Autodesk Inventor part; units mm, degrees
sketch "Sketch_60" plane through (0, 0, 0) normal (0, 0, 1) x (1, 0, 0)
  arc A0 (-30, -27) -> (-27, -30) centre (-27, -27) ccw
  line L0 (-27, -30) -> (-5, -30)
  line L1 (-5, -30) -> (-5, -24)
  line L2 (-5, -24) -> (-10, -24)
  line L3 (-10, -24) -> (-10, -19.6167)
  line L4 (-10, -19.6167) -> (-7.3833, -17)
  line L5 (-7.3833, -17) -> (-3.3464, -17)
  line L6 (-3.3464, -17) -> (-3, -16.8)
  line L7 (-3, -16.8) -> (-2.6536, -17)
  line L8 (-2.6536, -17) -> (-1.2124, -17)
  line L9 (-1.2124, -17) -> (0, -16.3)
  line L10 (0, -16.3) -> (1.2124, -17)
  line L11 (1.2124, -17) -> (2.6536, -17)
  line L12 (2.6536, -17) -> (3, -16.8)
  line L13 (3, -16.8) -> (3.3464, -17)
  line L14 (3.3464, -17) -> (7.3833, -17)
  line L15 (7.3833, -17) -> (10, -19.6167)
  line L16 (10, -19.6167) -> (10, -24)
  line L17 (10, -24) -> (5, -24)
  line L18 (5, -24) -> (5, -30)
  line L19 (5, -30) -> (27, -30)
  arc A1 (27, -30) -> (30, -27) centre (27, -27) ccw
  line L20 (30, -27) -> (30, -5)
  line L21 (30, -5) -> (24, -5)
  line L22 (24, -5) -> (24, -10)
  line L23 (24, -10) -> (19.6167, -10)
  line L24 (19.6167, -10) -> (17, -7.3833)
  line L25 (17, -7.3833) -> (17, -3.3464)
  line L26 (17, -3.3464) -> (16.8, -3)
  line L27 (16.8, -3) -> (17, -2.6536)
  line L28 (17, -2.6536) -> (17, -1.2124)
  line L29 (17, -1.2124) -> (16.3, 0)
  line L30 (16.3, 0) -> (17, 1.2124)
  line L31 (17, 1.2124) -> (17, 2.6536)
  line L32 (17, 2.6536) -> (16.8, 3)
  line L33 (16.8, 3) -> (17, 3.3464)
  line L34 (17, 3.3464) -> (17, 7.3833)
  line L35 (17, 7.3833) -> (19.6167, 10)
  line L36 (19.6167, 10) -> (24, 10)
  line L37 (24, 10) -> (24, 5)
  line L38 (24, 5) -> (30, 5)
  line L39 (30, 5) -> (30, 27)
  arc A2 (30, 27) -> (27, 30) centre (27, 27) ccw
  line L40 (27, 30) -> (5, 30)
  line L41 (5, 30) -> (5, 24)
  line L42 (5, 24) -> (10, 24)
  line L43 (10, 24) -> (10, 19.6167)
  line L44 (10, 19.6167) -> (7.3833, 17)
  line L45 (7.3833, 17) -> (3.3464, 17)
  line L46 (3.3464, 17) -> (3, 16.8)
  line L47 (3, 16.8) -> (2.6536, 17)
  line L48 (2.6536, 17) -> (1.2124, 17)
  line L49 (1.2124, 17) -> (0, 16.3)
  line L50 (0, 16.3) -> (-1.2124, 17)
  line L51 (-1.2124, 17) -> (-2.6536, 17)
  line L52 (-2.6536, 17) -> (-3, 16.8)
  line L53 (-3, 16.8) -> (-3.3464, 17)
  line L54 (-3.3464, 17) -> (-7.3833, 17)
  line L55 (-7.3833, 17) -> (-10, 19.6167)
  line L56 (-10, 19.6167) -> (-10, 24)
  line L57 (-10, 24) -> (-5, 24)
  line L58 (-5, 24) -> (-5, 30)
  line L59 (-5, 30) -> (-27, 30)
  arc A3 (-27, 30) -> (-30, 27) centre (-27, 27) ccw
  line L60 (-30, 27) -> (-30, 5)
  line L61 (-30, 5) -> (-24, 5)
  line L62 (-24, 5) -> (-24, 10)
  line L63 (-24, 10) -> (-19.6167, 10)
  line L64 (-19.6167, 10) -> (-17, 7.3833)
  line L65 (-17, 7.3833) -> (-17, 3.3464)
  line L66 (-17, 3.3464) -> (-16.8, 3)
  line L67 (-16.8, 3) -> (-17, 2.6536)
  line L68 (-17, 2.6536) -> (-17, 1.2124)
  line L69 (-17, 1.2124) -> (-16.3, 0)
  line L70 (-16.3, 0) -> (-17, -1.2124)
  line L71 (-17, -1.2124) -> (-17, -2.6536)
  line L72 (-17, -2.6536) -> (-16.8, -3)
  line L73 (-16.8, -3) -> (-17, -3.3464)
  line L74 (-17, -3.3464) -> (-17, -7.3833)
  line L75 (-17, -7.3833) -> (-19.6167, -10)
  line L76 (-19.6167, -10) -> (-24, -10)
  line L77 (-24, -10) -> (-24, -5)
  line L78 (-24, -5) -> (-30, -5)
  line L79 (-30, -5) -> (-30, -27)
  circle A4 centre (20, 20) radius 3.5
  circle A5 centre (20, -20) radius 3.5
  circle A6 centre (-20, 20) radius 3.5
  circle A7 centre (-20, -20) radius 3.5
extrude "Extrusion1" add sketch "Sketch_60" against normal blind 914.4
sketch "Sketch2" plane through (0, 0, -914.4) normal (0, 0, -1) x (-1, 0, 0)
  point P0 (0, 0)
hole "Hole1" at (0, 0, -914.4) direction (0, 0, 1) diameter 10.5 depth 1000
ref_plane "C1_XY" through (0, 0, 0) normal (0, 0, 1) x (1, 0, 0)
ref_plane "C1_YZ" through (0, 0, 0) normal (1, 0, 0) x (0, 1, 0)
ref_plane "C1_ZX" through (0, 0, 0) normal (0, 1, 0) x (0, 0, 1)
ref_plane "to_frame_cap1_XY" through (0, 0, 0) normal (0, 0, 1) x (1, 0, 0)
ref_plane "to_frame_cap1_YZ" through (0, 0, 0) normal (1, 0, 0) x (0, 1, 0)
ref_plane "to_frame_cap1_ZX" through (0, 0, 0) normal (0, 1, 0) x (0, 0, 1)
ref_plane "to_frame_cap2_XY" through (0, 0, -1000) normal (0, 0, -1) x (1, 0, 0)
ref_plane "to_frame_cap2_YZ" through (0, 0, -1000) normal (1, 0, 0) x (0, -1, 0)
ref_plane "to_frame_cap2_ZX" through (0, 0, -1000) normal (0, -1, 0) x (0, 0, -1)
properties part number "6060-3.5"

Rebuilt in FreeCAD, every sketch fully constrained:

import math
import FreeCAD as App
import Part
import Sketcher
Q = App.Units.Quantity

doc = App.newDocument("Part")
body = doc.addObject("PartDesign::Body", "Body")

# Sketch on XY plane
sketch1 = body.newObject("Sketcher::SketchObject", "Sketch")
sketch1.AttachmentSupport = (doc.getObject("XY_Plane"), [""])
sketch1.MapMode = "FlatFace"
sketch1.addGeometry(Part.LineSegment(App.Vector(-30, -5, 0), App.Vector(-30, -27, 0)), False)
sketch1.addGeometry(Part.ArcOfCircle(Part.Circle(App.Vector(-27, -27, 0), App.Vector(0, 0, 1), 3), math.radians(180), math.radians(270)), False)
sketch1.addGeometry(Part.LineSegment(App.Vector(-27, -30, 0), App.Vector(-5, -30, 0)), False)
sketch1.addGeometry(Part.LineSegment(App.Vector(-5, -30, 0), App.Vector(-5, -24, 0)), False)
sketch1.addGeometry(Part.LineSegment(App.Vector(-5, -24, 0), App.Vector(-10, -24, 0)), False)
sketch1.addGeometry(Part.LineSegment(App.Vector(-10, -24, 0), App.Vector(-10, -19.62, 0)), False)
sketch1.addGeometry(Part.LineSegment(App.Vector(-10, -19.62, 0), App.Vector(-7.38, -17, 0)), False)
sketch1.addGeometry(Part.LineSegment(App.Vector(-7.38, -17, 0), App.Vector(-3.35, -17, 0)), False)
sketch1.addGeometry(Part.LineSegment(App.Vector(-3.35, -17, 0), App.Vector(-3, -16.8, 0)), False)
sketch1.addGeometry(Part.LineSegment(App.Vector(-3, -16.8, 0), App.Vector(-2.65, -17, 0)), False)
sketch1.addGeometry(Part.LineSegment(App.Vector(-2.65, -17, 0), App.Vector(-1.21, -17, 0)), False)
sketch1.addGeometry(Part.LineSegment(App.Vector(-1.21, -17, 0), App.Vector(0, -16.3, 0)), False)
sketch1.addGeometry(Part.LineSegment(App.Vector(0, -16.3, 0), App.Vector(1.21, -17, 0)), False)
sketch1.addGeometry(Part.LineSegment(App.Vector(1.21, -17, 0), App.Vector(2.65, -17, 0)), False)
sketch1.addGeometry(Part.LineSegment(App.Vector(2.65, -17, 0), App.Vector(3, -16.8, 0)), False)
sketch1.addGeometry(Part.LineSegment(App.Vector(3, -16.8, 0), App.Vector(3.35, -17, 0)), False)
sketch1.addGeometry(Part.LineSegment(App.Vector(3.35, -17, 0), App.Vector(7.38, -17, 0)), False)
sketch1.addGeometry(Part.LineSegment(App.Vector(7.38, -17, 0), App.Vector(10, -19.62, 0)), False)
sketch1.addGeometry(Part.LineSegment(App.Vector(10, -19.62, 0), App.Vector(10, -24, 0)), False)
sketch1.addGeometry(Part.LineSegment(App.Vector(10, -24, 0), App.Vector(5, -24, 0)), False)
sketch1.addGeometry(Part.LineSegment(App.Vector(5, -24, 0), App.Vector(5, -30, 0)), False)
sketch1.addGeometry(Part.LineSegment(App.Vector(5, -30, 0), App.Vector(27, -30, 0)), False)
sketch1.addGeometry(Part.ArcOfCircle(Part.Circle(App.Vector(27, -27, 0), App.Vector(0, 0, 1), 3), math.radians(-90), math.radians(0)), False)
sketch1.addGeometry(Part.LineSegment(App.Vector(30, -27, 0), App.Vector(30, -5, 0)), False)
sketch1.addGeometry(Part.LineSegment(App.Vector(30, -5, 0), App.Vector(24, -5, 0)), False)
sketch1.addGeometry(Part.LineSegment(App.Vector(24, -5, 0), App.Vector(24, -10, 0)), False)
sketch1.addGeometry(Part.LineSegment(App.Vector(24, -10, 0), App.Vector(19.62, -10, 0)), False)
sketch1.addGeometry(Part.LineSegment(App.Vector(19.62, -10, 0), App.Vector(17, -7.38, 0)), False)
sketch1.addGeometry(Part.LineSegment(App.Vector(17, -7.38, 0), App.Vector(17, -3.35, 0)), False)
sketch1.addGeometry(Part.LineSegment(App.Vector(17, -3.35, 0), App.Vector(16.8, -3, 0)), False)
sketch1.addGeometry(Part.LineSegment(App.Vector(16.8, -3, 0), App.Vector(17, -2.65, 0)), False)
sketch1.addGeometry(Part.LineSegment(App.Vector(17, -2.65, 0), App.Vector(17, -1.21, 0)), False)
sketch1.addGeometry(Part.LineSegment(App.Vector(17, -1.21, 0), App.Vector(16.3, 0, 0)), False)
sketch1.addGeometry(Part.LineSegment(App.Vector(16.3, 0, 0), App.Vector(17, 1.21, 0)), False)
sketch1.addGeometry(Part.LineSegment(App.Vector(17, 1.21, 0), App.Vector(17, 2.65, 0)), False)
sketch1.addGeometry(Part.LineSegment(App.Vector(17, 2.65, 0), App.Vector(16.8, 3, 0)), False)
sketch1.addGeometry(Part.LineSegment(App.Vector(16.8, 3, 0), App.Vector(17, 3.35, 0)), False)
sketch1.addGeometry(Part.LineSegment(App.Vector(17, 3.35, 0), App.Vector(17, 7.38, 0)), False)
sketch1.addGeometry(Part.LineSegment(App.Vector(17, 7.38, 0), App.Vector(19.62, 10, 0)), False)
sketch1.addGeometry(Part.LineSegment(App.Vector(19.62, 10, 0), App.Vector(24, 10, 0)), False)
sketch1.addGeometry(Part.LineSegment(App.Vector(24, 10, 0), App.Vector(24, 5, 0)), False)
sketch1.addGeometry(Part.LineSegment(App.Vector(24, 5, 0), App.Vector(30, 5, 0)), False)
sketch1.addGeometry(Part.LineSegment(App.Vector(30, 5, 0), App.Vector(30, 27, 0)), False)
sketch1.addGeometry(Part.ArcOfCircle(Part.Circle(App.Vector(27, 27, 0), App.Vector(0, 0, 1), 3), math.radians(0), math.radians(90)), False)
sketch1.addGeometry(Part.LineSegment(App.Vector(27, 30, 0), App.Vector(5, 30, 0)), False)
sketch1.addGeometry(Part.LineSegment(App.Vector(5, 30, 0), App.Vector(5, 24, 0)), False)
sketch1.addGeometry(Part.LineSegment(App.Vector(5, 24, 0), App.Vector(10, 24, 0)), False)
sketch1.addGeometry(Part.LineSegment(App.Vector(10, 24, 0), App.Vector(10, 19.62, 0)), False)
sketch1.addGeometry(Part.LineSegment(App.Vector(10, 19.62, 0), App.Vector(7.38, 17, 0)), False)
sketch1.addGeometry(Part.LineSegment(App.Vector(7.38, 17, 0), App.Vector(3.35, 17, 0)), False)
sketch1.addGeometry(Part.LineSegment(App.Vector(3.35, 17, 0), App.Vector(3, 16.8, 0)), False)
sketch1.addGeometry(Part.LineSegment(App.Vector(3, 16.8, 0), App.Vector(2.65, 17, 0)), False)
sketch1.addGeometry(Part.LineSegment(App.Vector(2.65, 17, 0), App.Vector(1.21, 17, 0)), False)
sketch1.addGeometry(Part.LineSegment(App.Vector(1.21, 17, 0), App.Vector(0, 16.3, 0)), False)
sketch1.addGeometry(Part.LineSegment(App.Vector(0, 16.3, 0), App.Vector(-1.21, 17, 0)), False)
sketch1.addGeometry(Part.LineSegment(App.Vector(-1.21, 17, 0), App.Vector(-2.65, 17, 0)), False)
sketch1.addGeometry(Part.LineSegment(App.Vector(-2.65, 17, 0), App.Vector(-3, 16.8, 0)), False)
sketch1.addGeometry(Part.LineSegment(App.Vector(-3, 16.8, 0), App.Vector(-3.35, 17, 0)), False)
sketch1.addGeometry(Part.LineSegment(App.Vector(-3.35, 17, 0), App.Vector(-7.38, 17, 0)), False)
sketch1.addGeometry(Part.LineSegment(App.Vector(-7.38, 17, 0), App.Vector(-10, 19.62, 0)), False)
sketch1.addGeometry(Part.LineSegment(App.Vector(-10, 19.62, 0), App.Vector(-10, 24, 0)), False)
sketch1.addGeometry(Part.LineSegment(App.Vector(-10, 24, 0), App.Vector(-5, 24, 0)), False)
sketch1.addGeometry(Part.LineSegment(App.Vector(-5, 24, 0), App.Vector(-5, 30, 0)), False)
sketch1.addGeometry(Part.LineSegment(App.Vector(-5, 30, 0), App.Vector(-27, 30, 0)), False)
sketch1.addGeometry(Part.ArcOfCircle(Part.Circle(App.Vector(-27, 27, 0), App.Vector(0, 0, 1), 3), math.radians(90), math.radians(180)), False)
sketch1.addGeometry(Part.LineSegment(App.Vector(-30, 27, 0), App.Vector(-30, 5, 0)), False)
sketch1.addGeometry(Part.LineSegment(App.Vector(-30, 5, 0), App.Vector(-24, 5, 0)), False)
sketch1.addGeometry(Part.LineSegment(App.Vector(-24, 5, 0), App.Vector(-24, 10, 0)), False)
sketch1.addGeometry(Part.LineSegment(App.Vector(-24, 10, 0), App.Vector(-19.62, 10, 0)), False)
sketch1.addGeometry(Part.LineSegment(App.Vector(-19.62, 10, 0), App.Vector(-17, 7.38, 0)), False)
sketch1.addGeometry(Part.LineSegment(App.Vector(-17, 7.38, 0), App.Vector(-17, 3.35, 0)), False)
sketch1.addGeometry(Part.LineSegment(App.Vector(-17, 3.35, 0), App.Vector(-16.8, 3, 0)), False)
sketch1.addGeometry(Part.LineSegment(App.Vector(-16.8, 3, 0), App.Vector(-17, 2.65, 0)), False)
sketch1.addGeometry(Part.LineSegment(App.Vector(-17, 2.65, 0), App.Vector(-17, 1.21, 0)), False)
sketch1.addGeometry(Part.LineSegment(App.Vector(-17, 1.21, 0), App.Vector(-16.3, 0, 0)), False)
sketch1.addGeometry(Part.LineSegment(App.Vector(-16.3, 0, 0), App.Vector(-17, -1.21, 0)), False)
sketch1.addGeometry(Part.LineSegment(App.Vector(-17, -1.21, 0), App.Vector(-17, -2.65, 0)), False)
sketch1.addGeometry(Part.LineSegment(App.Vector(-17, -2.65, 0), App.Vector(-16.8, -3, 0)), False)
sketch1.addGeometry(Part.LineSegment(App.Vector(-16.8, -3, 0), App.Vector(-17, -3.35, 0)), False)
sketch1.addGeometry(Part.LineSegment(App.Vector(-17, -3.35, 0), App.Vector(-17, -7.38, 0)), False)
sketch1.addGeometry(Part.LineSegment(App.Vector(-17, -7.38, 0), App.Vector(-19.62, -10, 0)), False)
sketch1.addGeometry(Part.LineSegment(App.Vector(-19.62, -10, 0), App.Vector(-24, -10, 0)), False)
sketch1.addGeometry(Part.LineSegment(App.Vector(-24, -10, 0), App.Vector(-24, -5, 0)), False)
sketch1.addGeometry(Part.LineSegment(App.Vector(-24, -5, 0), App.Vector(-30, -5, 0)), False)
sketch1.addGeometry(Part.Circle(App.Vector(-20, -20, 0), App.Vector(0, 0, 1), 3.5), False)
sketch1.addGeometry(Part.Circle(App.Vector(20, -20, 0), App.Vector(0, 0, 1), 3.5), False)
sketch1.addGeometry(Part.Circle(App.Vector(-20, 20, 0), App.Vector(0, 0, 1), 3.5), False)
sketch1.addGeometry(Part.Circle(App.Vector(20, 20, 0), App.Vector(0, 0, 1), 3.5), False)
sketch1.addConstraint(Sketcher.Constraint("Tangent", 0, 2, 1, 1))
sketch1.addConstraint(Sketcher.Constraint("Tangent", 1, 2, 2, 1))
sketch1.addConstraint(Sketcher.Constraint("Coincident", 2, 2, 3, 1))
sketch1.addConstraint(Sketcher.Constraint("Coincident", 3, 2, 4, 1))
sketch1.addConstraint(Sketcher.Constraint("Coincident", 4, 2, 5, 1))
sketch1.addConstraint(Sketcher.Constraint("Coincident", 5, 2, 6, 1))
sketch1.addConstraint(Sketcher.Constraint("Coincident", 6, 2, 7, 1))
sketch1.addConstraint(Sketcher.Constraint("Coincident", 7, 2, 8, 1))
sketch1.addConstraint(Sketcher.Constraint("Coincident", 8, 2, 9, 1))
sketch1.addConstraint(Sketcher.Constraint("Coincident", 9, 2, 10, 1))
sketch1.addConstraint(Sketcher.Constraint("Coincident", 10, 2, 11, 1))
sketch1.addConstraint(Sketcher.Constraint("Coincident", 11, 2, 12, 1))
sketch1.addConstraint(Sketcher.Constraint("Coincident", 12, 2, 13, 1))
sketch1.addConstraint(Sketcher.Constraint("Coincident", 13, 2, 14, 1))
sketch1.addConstraint(Sketcher.Constraint("Coincident", 14, 2, 15, 1))
sketch1.addConstraint(Sketcher.Constraint("Coincident", 15, 2, 16, 1))
sketch1.addConstraint(Sketcher.Constraint("Coincident", 16, 2, 17, 1))
sketch1.addConstraint(Sketcher.Constraint("Coincident", 17, 2, 18, 1))
sketch1.addConstraint(Sketcher.Constraint("Coincident", 18, 2, 19, 1))
sketch1.addConstraint(Sketcher.Constraint("Coincident", 19, 2, 20, 1))
sketch1.addConstraint(Sketcher.Constraint("Coincident", 20, 2, 21, 1))
sketch1.addConstraint(Sketcher.Constraint("Tangent", 21, 2, 22, 1))
sketch1.addConstraint(Sketcher.Constraint("Tangent", 22, 2, 23, 1))
sketch1.addConstraint(Sketcher.Constraint("Coincident", 23, 2, 24, 1))
sketch1.addConstraint(Sketcher.Constraint("Coincident", 24, 2, 25, 1))
sketch1.addConstraint(Sketcher.Constraint("Coincident", 25, 2, 26, 1))
sketch1.addConstraint(Sketcher.Constraint("Coincident", 26, 2, 27, 1))
sketch1.addConstraint(Sketcher.Constraint("Coincident", 27, 2, 28, 1))
sketch1.addConstraint(Sketcher.Constraint("Coincident", 28, 2, 29, 1))
sketch1.addConstraint(Sketcher.Constraint("Coincident", 29, 2, 30, 1))
sketch1.addConstraint(Sketcher.Constraint("Coincident", 30, 2, 31, 1))
sketch1.addConstraint(Sketcher.Constraint("Coincident", 31, 2, 32, 1))
sketch1.addConstraint(Sketcher.Constraint("Coincident", 32, 2, 33, 1))
sketch1.addConstraint(Sketcher.Constraint("Coincident", 33, 2, 34, 1))
sketch1.addConstraint(Sketcher.Constraint("Coincident", 34, 2, 35, 1))
sketch1.addConstraint(Sketcher.Constraint("Coincident", 35, 2, 36, 1))
sketch1.addConstraint(Sketcher.Constraint("Coincident", 36, 2, 37, 1))
sketch1.addConstraint(Sketcher.Constraint("Coincident", 37, 2, 38, 1))
sketch1.addConstraint(Sketcher.Constraint("Coincident", 38, 2, 39, 1))
sketch1.addConstraint(Sketcher.Constraint("Coincident", 39, 2, 40, 1))
sketch1.addConstraint(Sketcher.Constraint("Coincident", 40, 2, 41, 1))
sketch1.addConstraint(Sketcher.Constraint("Coincident", 41, 2, 42, 1))
sketch1.addConstraint(Sketcher.Constraint("Tangent", 42, 2, 43, 1))
sketch1.addConstraint(Sketcher.Constraint("Tangent", 43, 2, 44, 1))
sketch1.addConstraint(Sketcher.Constraint("Coincident", 44, 2, 45, 1))
sketch1.addConstraint(Sketcher.Constraint("Coincident", 45, 2, 46, 1))
sketch1.addConstraint(Sketcher.Constraint("Coincident", 46, 2, 47, 1))
sketch1.addConstraint(Sketcher.Constraint("Coincident", 47, 2, 48, 1))
sketch1.addConstraint(Sketcher.Constraint("Coincident", 48, 2, 49, 1))
sketch1.addConstraint(Sketcher.Constraint("Coincident", 49, 2, 50, 1))
sketch1.addConstraint(Sketcher.Constraint("Coincident", 50, 2, 51, 1))
sketch1.addConstraint(Sketcher.Constraint("Coincident", 51, 2, 52, 1))
sketch1.addConstraint(Sketcher.Constraint("Coincident", 52, 2, 53, 1))
sketch1.addConstraint(Sketcher.Constraint("Coincident", 53, 2, 54, 1))
sketch1.addConstraint(Sketcher.Constraint("Coincident", 54, 2, 55, 1))
sketch1.addConstraint(Sketcher.Constraint("Coincident", 55, 2, 56, 1))
sketch1.addConstraint(Sketcher.Constraint("Coincident", 56, 2, 57, 1))
sketch1.addConstraint(Sketcher.Constraint("Coincident", 57, 2, 58, 1))
sketch1.addConstraint(Sketcher.Constraint("Coincident", 58, 2, 59, 1))
sketch1.addConstraint(Sketcher.Constraint("Coincident", 59, 2, 60, 1))
sketch1.addConstraint(Sketcher.Constraint("Coincident", 60, 2, 61, 1))
sketch1.addConstraint(Sketcher.Constraint("Coincident", 61, 2, 62, 1))
sketch1.addConstraint(Sketcher.Constraint("Coincident", 62, 2, 63, 1))
sketch1.addConstraint(Sketcher.Constraint("Tangent", 63, 2, 64, 1))
sketch1.addConstraint(Sketcher.Constraint("Tangent", 64, 2, 65, 1))
sketch1.addConstraint(Sketcher.Constraint("Coincident", 65, 2, 66, 1))
sketch1.addConstraint(Sketcher.Constraint("Coincident", 66, 2, 67, 1))
sketch1.addConstraint(Sketcher.Constraint("Coincident", 67, 2, 68, 1))
sketch1.addConstraint(Sketcher.Constraint("Coincident", 68, 2, 69, 1))
sketch1.addConstraint(Sketcher.Constraint("Coincident", 69, 2, 70, 1))
sketch1.addConstraint(Sketcher.Constraint("Coincident", 70, 2, 71, 1))
sketch1.addConstraint(Sketcher.Constraint("Coincident", 71, 2, 72, 1))
sketch1.addConstraint(Sketcher.Constraint("Coincident", 72, 2, 73, 1))
sketch1.addConstraint(Sketcher.Constraint("Coincident", 73, 2, 74, 1))
sketch1.addConstraint(Sketcher.Constraint("Coincident", 74, 2, 75, 1))
sketch1.addConstraint(Sketcher.Constraint("Coincident", 75, 2, 76, 1))
sketch1.addConstraint(Sketcher.Constraint("Coincident", 76, 2, 77, 1))
sketch1.addConstraint(Sketcher.Constraint("Coincident", 77, 2, 78, 1))
sketch1.addConstraint(Sketcher.Constraint("Coincident", 78, 2, 79, 1))
sketch1.addConstraint(Sketcher.Constraint("Coincident", 79, 2, 80, 1))
sketch1.addConstraint(Sketcher.Constraint("Coincident", 80, 2, 81, 1))
sketch1.addConstraint(Sketcher.Constraint("Coincident", 81, 2, 82, 1))
sketch1.addConstraint(Sketcher.Constraint("Coincident", 82, 2, 83, 1))
sketch1.addConstraint(Sketcher.Constraint("Coincident", 83, 2, 0, 1))
sketch1.addConstraint(Sketcher.Constraint("Vertical", 0))
sketch1.addConstraint(Sketcher.Constraint("Horizontal", 2))
sketch1.addConstraint(Sketcher.Constraint("Vertical", 3))
sketch1.addConstraint(Sketcher.Constraint("Horizontal", 4))
sketch1.addConstraint(Sketcher.Constraint("Vertical", 5))
sketch1.addConstraint(Sketcher.Constraint("Horizontal", 7))
sketch1.addConstraint(Sketcher.Constraint("Horizontal", 10))
sketch1.addConstraint(Sketcher.Constraint("Horizontal", 13))
sketch1.addConstraint(Sketcher.Constraint("Horizontal", 16))
sketch1.addConstraint(Sketcher.Constraint("Vertical", 18))
sketch1.addConstraint(Sketcher.Constraint("Horizontal", 19))
sketch1.addConstraint(Sketcher.Constraint("Vertical", 20))
sketch1.addConstraint(Sketcher.Constraint("Horizontal", 21))
sketch1.addConstraint(Sketcher.Constraint("Vertical", 23))
sketch1.addConstraint(Sketcher.Constraint("Horizontal", 24))
sketch1.addConstraint(Sketcher.Constraint("Vertical", 25))
sketch1.addConstraint(Sketcher.Constraint("Horizontal", 26))
sketch1.addConstraint(Sketcher.Constraint("Vertical", 28))
sketch1.addConstraint(Sketcher.Constraint("Vertical", 31))
sketch1.addConstraint(Sketcher.Constraint("Vertical", 34))
sketch1.addConstraint(Sketcher.Constraint("Vertical", 37))
sketch1.addConstraint(Sketcher.Constraint("Horizontal", 39))
sketch1.addConstraint(Sketcher.Constraint("Vertical", 40))
sketch1.addConstraint(Sketcher.Constraint("Horizontal", 41))
sketch1.addConstraint(Sketcher.Constraint("Vertical", 42))
sketch1.addConstraint(Sketcher.Constraint("Horizontal", 44))
sketch1.addConstraint(Sketcher.Constraint("Vertical", 45))
sketch1.addConstraint(Sketcher.Constraint("Horizontal", 46))
sketch1.addConstraint(Sketcher.Constraint("Vertical", 47))
sketch1.addConstraint(Sketcher.Constraint("Horizontal", 49))
sketch1.addConstraint(Sketcher.Constraint("Horizontal", 52))
sketch1.addConstraint(Sketcher.Constraint("Horizontal", 55))
sketch1.addConstraint(Sketcher.Constraint("Horizontal", 58))
sketch1.addConstraint(Sketcher.Constraint("Vertical", 60))
sketch1.addConstraint(Sketcher.Constraint("Horizontal", 61))
sketch1.addConstraint(Sketcher.Constraint("Vertical", 62))
sketch1.addConstraint(Sketcher.Constraint("Horizontal", 63))
sketch1.addConstraint(Sketcher.Constraint("Vertical", 65))
sketch1.addConstraint(Sketcher.Constraint("Horizontal", 66))
sketch1.addConstraint(Sketcher.Constraint("Vertical", 67))
sketch1.addConstraint(Sketcher.Constraint("Horizontal", 68))
sketch1.addConstraint(Sketcher.Constraint("Vertical", 70))
sketch1.addConstraint(Sketcher.Constraint("Vertical", 73))
sketch1.addConstraint(Sketcher.Constraint("Vertical", 76))
sketch1.addConstraint(Sketcher.Constraint("Vertical", 79))
sketch1.addConstraint(Sketcher.Constraint("Horizontal", 81))
sketch1.addConstraint(Sketcher.Constraint("Vertical", 82))
sketch1.addConstraint(Sketcher.Constraint("Horizontal", 83))
sketch1.addConstraint(Sketcher.Constraint("Equal", 1, 22))
sketch1.addConstraint(Sketcher.Constraint("Equal", 22, 43))
sketch1.addConstraint(Sketcher.Constraint("Equal", 43, 64))
sketch1.addConstraint(Sketcher.Constraint("Equal", 84, 85))
sketch1.addConstraint(Sketcher.Constraint("Equal", 85, 86))
sketch1.addConstraint(Sketcher.Constraint("Equal", 86, 87))
sketch1.addConstraint(Sketcher.Constraint("Symmetric", 1, 3, 43, 3, -1, 1))
sketch1.addConstraint(Sketcher.Constraint("Symmetric", 22, 3, 64, 3, -1, 1))
sketch1.addConstraint(Sketcher.Constraint("Symmetric", 85, 3, 86, 3, -1, 1))
sketch1.addConstraint(Sketcher.Constraint("Symmetric", 84, 3, 87, 3, -1, 1))
sketch1.addConstraint(Sketcher.Constraint("Symmetric", 3, 2, 45, 2, -1, 1))
sketch1.addConstraint(Sketcher.Constraint("Symmetric", 5, 2, 47, 2, -1, 1))
sketch1.addConstraint(Sketcher.Constraint("Symmetric", 6, 2, 48, 2, -1, 1))
sketch1.addConstraint(Sketcher.Constraint("Symmetric", 8, 2, 50, 2, -1, 1))
sketch1.addConstraint(Sketcher.Constraint("Symmetric", 9, 2, 51, 2, -1, 1))
sketch1.addConstraint(Sketcher.Constraint("Symmetric", 11, 2, 53, 2, -1, 1))
sketch1.addConstraint(Sketcher.Constraint("Symmetric", 12, 2, 54, 2, -1, 1))
sketch1.addConstraint(Sketcher.Constraint("Symmetric", 14, 2, 56, 2, -1, 1))
sketch1.addConstraint(Sketcher.Constraint("Symmetric", 15, 2, 57, 2, -1, 1))
sketch1.addConstraint(Sketcher.Constraint("Symmetric", 17, 2, 59, 2, -1, 1))
sketch1.addConstraint(Sketcher.Constraint("Symmetric", 19, 2, 61, 2, -1, 1))
sketch1.addConstraint(Sketcher.Constraint("Symmetric", 24, 2, 66, 2, -1, 1))
sketch1.addConstraint(Sketcher.Constraint("Symmetric", 26, 2, 68, 2, -1, 1))
sketch1.addConstraint(Sketcher.Constraint("Symmetric", 27, 2, 69, 2, -1, 1))
sketch1.addConstraint(Sketcher.Constraint("Symmetric", 29, 2, 71, 2, -1, 1))
sketch1.addConstraint(Sketcher.Constraint("Symmetric", 30, 2, 72, 2, -1, 1))
sketch1.addConstraint(Sketcher.Constraint("Symmetric", 32, 2, 74, 2, -1, 1))
sketch1.addConstraint(Sketcher.Constraint("Symmetric", 33, 2, 75, 2, -1, 1))
sketch1.addConstraint(Sketcher.Constraint("Symmetric", 35, 2, 77, 2, -1, 1))
sketch1.addConstraint(Sketcher.Constraint("Symmetric", 36, 2, 78, 2, -1, 1))
sketch1.addConstraint(Sketcher.Constraint("Symmetric", 38, 2, 80, 2, -1, 1))
sketch1.addConstraint(Sketcher.Constraint("Symmetric", 40, 2, 82, 2, -1, 1))
sketch1.addConstraint(Sketcher.Constraint("Symmetric", 1, 3, 22, 3, -2))
sketch1.addConstraint(Sketcher.Constraint("Symmetric", 84, 3, 85, 3, -2))
sketch1.addConstraint(Sketcher.Constraint("Symmetric", 10, 2, 12, 2, -2))
sketch1.addConstraint(Sketcher.Constraint("Symmetric", 8, 2, 14, 2, -2))
sketch1.addConstraint(Sketcher.Constraint("Symmetric", 7, 2, 15, 2, -2))
sketch1.addConstraint(Sketcher.Constraint("Symmetric", 5, 2, 17, 2, -2))
sketch1.addConstraint(Sketcher.Constraint("Symmetric", 3, 2, 19, 2, -2))
sketch1.addConstraint(Sketcher.Constraint("Symmetric", 40, 2, 66, 2, -2))
sketch1.addConstraint(Sketcher.Constraint("Symmetric", 38, 2, 68, 2, -2))
sketch1.addConstraint(Sketcher.Constraint("Symmetric", 37, 2, 69, 2, -2))
sketch1.addConstraint(Sketcher.Constraint("Symmetric", 35, 2, 71, 2, -2))
sketch1.addConstraint(Sketcher.Constraint("Symmetric", 34, 2, 72, 2, -2))
sketch1.addConstraint(Sketcher.Constraint("PointOnObject", 11, 2, -2))
sketch1.addConstraint(Sketcher.Constraint("PointOnObject", 32, 2, -1))
sketch1.addConstraint(Sketcher.Constraint("Parallel", 8, 11))
sketch1.addConstraint(Sketcher.Constraint("Parallel", 9, 12))
sketch1.addConstraint(Sketcher.Constraint("Parallel", 11, 14))
sketch1.addConstraint(Sketcher.Constraint("Perpendicular", 6, 17))
sketch1.addConstraint(Sketcher.Constraint("Parallel", 17, 27))
sketch1.addConstraint(Sketcher.Constraint("Perpendicular", 14, 29))
sketch1.addConstraint(Sketcher.Constraint("Perpendicular", 15, 30))
sketch1.addConstraint(Sketcher.Constraint("Parallel", 29, 32))
sketch1.addConstraint(Sketcher.Constraint("Parallel", 30, 33))
sketch1.addConstraint(Sketcher.Constraint("Parallel", 33, 36))
sketch1.addConstraint(Sketcher.Constraint("Perpendicular", 27, 38))
sketch1.addConstraint(Sketcher.Constraint("Perpendicular", 35, 50))
sketch1.addConstraint(Sketcher.Constraint("Parallel", 50, 53))
sketch1.addConstraint(Sketcher.Constraint("Parallel", 53, 56))
sketch1.addConstraint(Sketcher.Constraint("Perpendicular", 48, 59))
sketch1.addConstraint(Sketcher.Constraint("Perpendicular", 56, 71))
sketch1.addConstraint(Sketcher.Constraint("Parallel", 71, 74))
sketch1.addConstraint(Sketcher.Constraint("Parallel", 74, 77))
sketch1.addConstraint(Sketcher.Constraint("Perpendicular", 69, 80))
sketch1.addConstraint(Sketcher.Constraint("Horizontal", 7, 2, 9, 2))
sketch1.addConstraint(Sketcher.Constraint("Vertical", 28, 2, 30, 2))
sketch1.addConstraint(Sketcher.Constraint("Equal", 63, 0))
sketch1.addConstraint(Sketcher.Constraint("Equal", 83, 3))
sketch1.addConstraint(Sketcher.Constraint("Equal", 81, 5))
sketch1.addConstraint(Sketcher.Constraint("Equal", 61, 25))
sketch1.addConstraint(Sketcher.Constraint("Equal", 58, 28))
sketch1.addConstraint(Sketcher.Constraint("Equal", 55, 31))
sketch1.addConstraint(Sketcher.Constraint("Equal", 17, 27))
sketch1.addConstraint(Sketcher.Constraint("Equal", 15, 29))
sketch1.addConstraint(Sketcher.Constraint("Equal", 12, 32))
sketch1.addConstraint(Sketcher.Constraint("Diameter", 84, 7.0))
sketch1.addConstraint(Sketcher.Constraint("Radius", 1, 3.0))
sketch1.addConstraint(Sketcher.Constraint("DistanceX", 2, 1, 2, 2, 22.0))
sketch1.addConstraint(Sketcher.Constraint("DistanceX", 4, 2, 4, 1, 5.0))
sketch1.addConstraint(Sketcher.Constraint("DistanceX", 24, 2, 24, 1, 6.0))
sketch1.addConstraint(Sketcher.Constraint("Angle", 8, Q("30.0007 deg")))
sketch1.addConstraint(Sketcher.Constraint("DistanceX", 1, 3, -1, 1, 27.0))
sketch1.addConstraint(Sketcher.Constraint("DistanceX", 84, 3, -1, 1, 20.0))
sketch1.addConstraint(Sketcher.Constraint("DistanceY", 84, 3, -1, 1, 20.0))
sketch1.addConstraint(Sketcher.Constraint("DistanceY", 6, 2, -1, 1, 17.0))
sketch1.addConstraint(Sketcher.Constraint("DistanceX", 8, 2, -1, 1, 3.0))
sketch1.addConstraint(Sketcher.Constraint("Distance", 8, 0.4))
sketch1.addConstraint(Sketcher.Constraint("Distance", 11, 1.4))
sketch1.addConstraint(Sketcher.Constraint("DistanceX", 7, 1, 7, 2, 4.037))
pad1 = body.newObject("PartDesign::Pad", "Pad")
pad1.Profile = sketch1
pad1.Length = 914.4
pad1.Reversed = True

# Sketch on XY plane
sketch2 = body.newObject("Sketcher::SketchObject", "Sketch001")
sketch2.AttachmentSupport = (doc.getObject("XY_Plane"), [""])
sketch2.MapMode = "FlatFace"
sketch2.AttachmentOffset = App.Placement(App.Vector(0, 0, -914.4), App.Rotation())
sketch2.addGeometry(Part.Circle(App.Vector(0, 0, 0), App.Vector(0, 0, 1), 5), False)
sketch2.addConstraint(Sketcher.Constraint("Coincident", 0, 3, -1, 1))
sketch2.addConstraint(Sketcher.Constraint("Diameter", 0, 10.5))
doc.recompute()
hole = body.newObject("PartDesign::Hole", "Hole")
hole.Profile = sketch2
hole.ThreadType = "None"
hole.Diameter = 10.5
hole.DepthType = "Dimension"
hole.Depth = 1000
hole.DrillPoint = "Flat"
hole.Reversed = True

doc.recompute()
